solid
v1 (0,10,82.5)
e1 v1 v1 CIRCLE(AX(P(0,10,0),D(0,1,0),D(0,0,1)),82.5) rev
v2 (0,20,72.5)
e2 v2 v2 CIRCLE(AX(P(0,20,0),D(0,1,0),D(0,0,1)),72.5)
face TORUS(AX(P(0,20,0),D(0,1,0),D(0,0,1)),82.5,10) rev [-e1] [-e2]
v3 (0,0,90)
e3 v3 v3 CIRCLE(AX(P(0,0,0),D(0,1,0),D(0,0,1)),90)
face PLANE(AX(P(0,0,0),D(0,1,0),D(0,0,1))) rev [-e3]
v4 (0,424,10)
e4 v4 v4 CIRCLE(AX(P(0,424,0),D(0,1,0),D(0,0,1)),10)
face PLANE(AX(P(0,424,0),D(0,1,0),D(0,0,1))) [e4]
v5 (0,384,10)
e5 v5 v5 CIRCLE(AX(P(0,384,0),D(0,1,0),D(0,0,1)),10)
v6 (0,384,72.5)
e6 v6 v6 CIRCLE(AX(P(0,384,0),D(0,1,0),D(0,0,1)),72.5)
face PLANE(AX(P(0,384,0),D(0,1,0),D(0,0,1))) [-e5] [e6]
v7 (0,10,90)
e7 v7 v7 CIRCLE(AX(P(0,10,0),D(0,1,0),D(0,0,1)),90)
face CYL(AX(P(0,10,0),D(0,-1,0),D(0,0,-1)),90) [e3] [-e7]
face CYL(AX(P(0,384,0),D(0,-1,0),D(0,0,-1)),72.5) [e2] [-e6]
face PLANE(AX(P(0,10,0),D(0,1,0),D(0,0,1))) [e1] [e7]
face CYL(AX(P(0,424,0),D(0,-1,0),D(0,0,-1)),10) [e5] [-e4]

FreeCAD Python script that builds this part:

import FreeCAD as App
import Part
import Sketcher


def edges_at(feature, points):
    """Names of the edges that pass closest to the given points."""
    edges = feature.Shape.Edges
    near = lambda p: min(range(len(edges)), key=lambda i: edges[i].distToShape(Part.Vertex(*p))[0])
    return sorted({f"Edge{near(p) + 1}" for p in points})

doc = App.newDocument("Part")
body = doc.addObject("PartDesign::Body", "Body")

# Sketch on XZ plane
sketch1 = body.newObject("Sketcher::SketchObject", "Sketch")
sketch1.AttachmentSupport = (doc.getObject("XZ_Plane"), [""])
sketch1.MapMode = "FlatFace"
sketch1.addGeometry(Part.Circle(App.Vector(0, 0, 0), App.Vector(0, 0, 1), 72.5), False)
sketch1.addConstraint([
    Sketcher.Constraint("Coincident", 0, 3, -1, 1),
    Sketcher.Constraint("Diameter", 0, 145.0),
])
pad1 = body.newObject("PartDesign::Pad", "Pad")
pad1.Profile = sketch1
pad1.Length = 384
pad1.Reversed = True

# Sketch on XZ plane
sketch2 = body.newObject("Sketcher::SketchObject", "Sketch001")
sketch2.AttachmentSupport = (doc.getObject("XZ_Plane"), [""])
sketch2.MapMode = "FlatFace"
sketch2.addGeometry(Part.Circle(App.Vector(0, 0, 0), App.Vector(0, 0, 1), 90), False)
sketch2.addConstraint([
    Sketcher.Constraint("Coincident", 0, 3, -1, 1),
    Sketcher.Constraint("Diameter", 0, 180.0),
])
pad2 = body.newObject("PartDesign::Pad", "Pad001")
pad2.Profile = sketch2
pad2.Length = 10
pad2.Reversed = True
doc.recompute()

fillet = body.newObject("PartDesign::Fillet", "Fillet")
fillet.Base = (pad2, edges_at(pad2, [(-72.5, 10, 0)]))
fillet.Radius = 10

# Sketch on XZ plane
sketch3 = body.newObject("Sketcher::SketchObject", "Sketch002")
sketch3.AttachmentSupport = (doc.getObject("XZ_Plane"), [""])
sketch3.MapMode = "FlatFace"
sketch3.AttachmentOffset = App.Placement(App.Vector(0, 0, -384), App.Rotation())
sketch3.addGeometry(Part.Circle(App.Vector(0, 0, 0), App.Vector(0, 0, 1), 10), False)
sketch3.addConstraint([
    Sketcher.Constraint("Coincident", 0, 3, -1, 1),
    Sketcher.Constraint("Diameter", 0, 20.0),
])
pad3 = body.newObject("PartDesign::Pad", "Pad002")
pad3.Profile = sketch3
pad3.Length = 40
pad3.Reversed = True

doc.recompute()
